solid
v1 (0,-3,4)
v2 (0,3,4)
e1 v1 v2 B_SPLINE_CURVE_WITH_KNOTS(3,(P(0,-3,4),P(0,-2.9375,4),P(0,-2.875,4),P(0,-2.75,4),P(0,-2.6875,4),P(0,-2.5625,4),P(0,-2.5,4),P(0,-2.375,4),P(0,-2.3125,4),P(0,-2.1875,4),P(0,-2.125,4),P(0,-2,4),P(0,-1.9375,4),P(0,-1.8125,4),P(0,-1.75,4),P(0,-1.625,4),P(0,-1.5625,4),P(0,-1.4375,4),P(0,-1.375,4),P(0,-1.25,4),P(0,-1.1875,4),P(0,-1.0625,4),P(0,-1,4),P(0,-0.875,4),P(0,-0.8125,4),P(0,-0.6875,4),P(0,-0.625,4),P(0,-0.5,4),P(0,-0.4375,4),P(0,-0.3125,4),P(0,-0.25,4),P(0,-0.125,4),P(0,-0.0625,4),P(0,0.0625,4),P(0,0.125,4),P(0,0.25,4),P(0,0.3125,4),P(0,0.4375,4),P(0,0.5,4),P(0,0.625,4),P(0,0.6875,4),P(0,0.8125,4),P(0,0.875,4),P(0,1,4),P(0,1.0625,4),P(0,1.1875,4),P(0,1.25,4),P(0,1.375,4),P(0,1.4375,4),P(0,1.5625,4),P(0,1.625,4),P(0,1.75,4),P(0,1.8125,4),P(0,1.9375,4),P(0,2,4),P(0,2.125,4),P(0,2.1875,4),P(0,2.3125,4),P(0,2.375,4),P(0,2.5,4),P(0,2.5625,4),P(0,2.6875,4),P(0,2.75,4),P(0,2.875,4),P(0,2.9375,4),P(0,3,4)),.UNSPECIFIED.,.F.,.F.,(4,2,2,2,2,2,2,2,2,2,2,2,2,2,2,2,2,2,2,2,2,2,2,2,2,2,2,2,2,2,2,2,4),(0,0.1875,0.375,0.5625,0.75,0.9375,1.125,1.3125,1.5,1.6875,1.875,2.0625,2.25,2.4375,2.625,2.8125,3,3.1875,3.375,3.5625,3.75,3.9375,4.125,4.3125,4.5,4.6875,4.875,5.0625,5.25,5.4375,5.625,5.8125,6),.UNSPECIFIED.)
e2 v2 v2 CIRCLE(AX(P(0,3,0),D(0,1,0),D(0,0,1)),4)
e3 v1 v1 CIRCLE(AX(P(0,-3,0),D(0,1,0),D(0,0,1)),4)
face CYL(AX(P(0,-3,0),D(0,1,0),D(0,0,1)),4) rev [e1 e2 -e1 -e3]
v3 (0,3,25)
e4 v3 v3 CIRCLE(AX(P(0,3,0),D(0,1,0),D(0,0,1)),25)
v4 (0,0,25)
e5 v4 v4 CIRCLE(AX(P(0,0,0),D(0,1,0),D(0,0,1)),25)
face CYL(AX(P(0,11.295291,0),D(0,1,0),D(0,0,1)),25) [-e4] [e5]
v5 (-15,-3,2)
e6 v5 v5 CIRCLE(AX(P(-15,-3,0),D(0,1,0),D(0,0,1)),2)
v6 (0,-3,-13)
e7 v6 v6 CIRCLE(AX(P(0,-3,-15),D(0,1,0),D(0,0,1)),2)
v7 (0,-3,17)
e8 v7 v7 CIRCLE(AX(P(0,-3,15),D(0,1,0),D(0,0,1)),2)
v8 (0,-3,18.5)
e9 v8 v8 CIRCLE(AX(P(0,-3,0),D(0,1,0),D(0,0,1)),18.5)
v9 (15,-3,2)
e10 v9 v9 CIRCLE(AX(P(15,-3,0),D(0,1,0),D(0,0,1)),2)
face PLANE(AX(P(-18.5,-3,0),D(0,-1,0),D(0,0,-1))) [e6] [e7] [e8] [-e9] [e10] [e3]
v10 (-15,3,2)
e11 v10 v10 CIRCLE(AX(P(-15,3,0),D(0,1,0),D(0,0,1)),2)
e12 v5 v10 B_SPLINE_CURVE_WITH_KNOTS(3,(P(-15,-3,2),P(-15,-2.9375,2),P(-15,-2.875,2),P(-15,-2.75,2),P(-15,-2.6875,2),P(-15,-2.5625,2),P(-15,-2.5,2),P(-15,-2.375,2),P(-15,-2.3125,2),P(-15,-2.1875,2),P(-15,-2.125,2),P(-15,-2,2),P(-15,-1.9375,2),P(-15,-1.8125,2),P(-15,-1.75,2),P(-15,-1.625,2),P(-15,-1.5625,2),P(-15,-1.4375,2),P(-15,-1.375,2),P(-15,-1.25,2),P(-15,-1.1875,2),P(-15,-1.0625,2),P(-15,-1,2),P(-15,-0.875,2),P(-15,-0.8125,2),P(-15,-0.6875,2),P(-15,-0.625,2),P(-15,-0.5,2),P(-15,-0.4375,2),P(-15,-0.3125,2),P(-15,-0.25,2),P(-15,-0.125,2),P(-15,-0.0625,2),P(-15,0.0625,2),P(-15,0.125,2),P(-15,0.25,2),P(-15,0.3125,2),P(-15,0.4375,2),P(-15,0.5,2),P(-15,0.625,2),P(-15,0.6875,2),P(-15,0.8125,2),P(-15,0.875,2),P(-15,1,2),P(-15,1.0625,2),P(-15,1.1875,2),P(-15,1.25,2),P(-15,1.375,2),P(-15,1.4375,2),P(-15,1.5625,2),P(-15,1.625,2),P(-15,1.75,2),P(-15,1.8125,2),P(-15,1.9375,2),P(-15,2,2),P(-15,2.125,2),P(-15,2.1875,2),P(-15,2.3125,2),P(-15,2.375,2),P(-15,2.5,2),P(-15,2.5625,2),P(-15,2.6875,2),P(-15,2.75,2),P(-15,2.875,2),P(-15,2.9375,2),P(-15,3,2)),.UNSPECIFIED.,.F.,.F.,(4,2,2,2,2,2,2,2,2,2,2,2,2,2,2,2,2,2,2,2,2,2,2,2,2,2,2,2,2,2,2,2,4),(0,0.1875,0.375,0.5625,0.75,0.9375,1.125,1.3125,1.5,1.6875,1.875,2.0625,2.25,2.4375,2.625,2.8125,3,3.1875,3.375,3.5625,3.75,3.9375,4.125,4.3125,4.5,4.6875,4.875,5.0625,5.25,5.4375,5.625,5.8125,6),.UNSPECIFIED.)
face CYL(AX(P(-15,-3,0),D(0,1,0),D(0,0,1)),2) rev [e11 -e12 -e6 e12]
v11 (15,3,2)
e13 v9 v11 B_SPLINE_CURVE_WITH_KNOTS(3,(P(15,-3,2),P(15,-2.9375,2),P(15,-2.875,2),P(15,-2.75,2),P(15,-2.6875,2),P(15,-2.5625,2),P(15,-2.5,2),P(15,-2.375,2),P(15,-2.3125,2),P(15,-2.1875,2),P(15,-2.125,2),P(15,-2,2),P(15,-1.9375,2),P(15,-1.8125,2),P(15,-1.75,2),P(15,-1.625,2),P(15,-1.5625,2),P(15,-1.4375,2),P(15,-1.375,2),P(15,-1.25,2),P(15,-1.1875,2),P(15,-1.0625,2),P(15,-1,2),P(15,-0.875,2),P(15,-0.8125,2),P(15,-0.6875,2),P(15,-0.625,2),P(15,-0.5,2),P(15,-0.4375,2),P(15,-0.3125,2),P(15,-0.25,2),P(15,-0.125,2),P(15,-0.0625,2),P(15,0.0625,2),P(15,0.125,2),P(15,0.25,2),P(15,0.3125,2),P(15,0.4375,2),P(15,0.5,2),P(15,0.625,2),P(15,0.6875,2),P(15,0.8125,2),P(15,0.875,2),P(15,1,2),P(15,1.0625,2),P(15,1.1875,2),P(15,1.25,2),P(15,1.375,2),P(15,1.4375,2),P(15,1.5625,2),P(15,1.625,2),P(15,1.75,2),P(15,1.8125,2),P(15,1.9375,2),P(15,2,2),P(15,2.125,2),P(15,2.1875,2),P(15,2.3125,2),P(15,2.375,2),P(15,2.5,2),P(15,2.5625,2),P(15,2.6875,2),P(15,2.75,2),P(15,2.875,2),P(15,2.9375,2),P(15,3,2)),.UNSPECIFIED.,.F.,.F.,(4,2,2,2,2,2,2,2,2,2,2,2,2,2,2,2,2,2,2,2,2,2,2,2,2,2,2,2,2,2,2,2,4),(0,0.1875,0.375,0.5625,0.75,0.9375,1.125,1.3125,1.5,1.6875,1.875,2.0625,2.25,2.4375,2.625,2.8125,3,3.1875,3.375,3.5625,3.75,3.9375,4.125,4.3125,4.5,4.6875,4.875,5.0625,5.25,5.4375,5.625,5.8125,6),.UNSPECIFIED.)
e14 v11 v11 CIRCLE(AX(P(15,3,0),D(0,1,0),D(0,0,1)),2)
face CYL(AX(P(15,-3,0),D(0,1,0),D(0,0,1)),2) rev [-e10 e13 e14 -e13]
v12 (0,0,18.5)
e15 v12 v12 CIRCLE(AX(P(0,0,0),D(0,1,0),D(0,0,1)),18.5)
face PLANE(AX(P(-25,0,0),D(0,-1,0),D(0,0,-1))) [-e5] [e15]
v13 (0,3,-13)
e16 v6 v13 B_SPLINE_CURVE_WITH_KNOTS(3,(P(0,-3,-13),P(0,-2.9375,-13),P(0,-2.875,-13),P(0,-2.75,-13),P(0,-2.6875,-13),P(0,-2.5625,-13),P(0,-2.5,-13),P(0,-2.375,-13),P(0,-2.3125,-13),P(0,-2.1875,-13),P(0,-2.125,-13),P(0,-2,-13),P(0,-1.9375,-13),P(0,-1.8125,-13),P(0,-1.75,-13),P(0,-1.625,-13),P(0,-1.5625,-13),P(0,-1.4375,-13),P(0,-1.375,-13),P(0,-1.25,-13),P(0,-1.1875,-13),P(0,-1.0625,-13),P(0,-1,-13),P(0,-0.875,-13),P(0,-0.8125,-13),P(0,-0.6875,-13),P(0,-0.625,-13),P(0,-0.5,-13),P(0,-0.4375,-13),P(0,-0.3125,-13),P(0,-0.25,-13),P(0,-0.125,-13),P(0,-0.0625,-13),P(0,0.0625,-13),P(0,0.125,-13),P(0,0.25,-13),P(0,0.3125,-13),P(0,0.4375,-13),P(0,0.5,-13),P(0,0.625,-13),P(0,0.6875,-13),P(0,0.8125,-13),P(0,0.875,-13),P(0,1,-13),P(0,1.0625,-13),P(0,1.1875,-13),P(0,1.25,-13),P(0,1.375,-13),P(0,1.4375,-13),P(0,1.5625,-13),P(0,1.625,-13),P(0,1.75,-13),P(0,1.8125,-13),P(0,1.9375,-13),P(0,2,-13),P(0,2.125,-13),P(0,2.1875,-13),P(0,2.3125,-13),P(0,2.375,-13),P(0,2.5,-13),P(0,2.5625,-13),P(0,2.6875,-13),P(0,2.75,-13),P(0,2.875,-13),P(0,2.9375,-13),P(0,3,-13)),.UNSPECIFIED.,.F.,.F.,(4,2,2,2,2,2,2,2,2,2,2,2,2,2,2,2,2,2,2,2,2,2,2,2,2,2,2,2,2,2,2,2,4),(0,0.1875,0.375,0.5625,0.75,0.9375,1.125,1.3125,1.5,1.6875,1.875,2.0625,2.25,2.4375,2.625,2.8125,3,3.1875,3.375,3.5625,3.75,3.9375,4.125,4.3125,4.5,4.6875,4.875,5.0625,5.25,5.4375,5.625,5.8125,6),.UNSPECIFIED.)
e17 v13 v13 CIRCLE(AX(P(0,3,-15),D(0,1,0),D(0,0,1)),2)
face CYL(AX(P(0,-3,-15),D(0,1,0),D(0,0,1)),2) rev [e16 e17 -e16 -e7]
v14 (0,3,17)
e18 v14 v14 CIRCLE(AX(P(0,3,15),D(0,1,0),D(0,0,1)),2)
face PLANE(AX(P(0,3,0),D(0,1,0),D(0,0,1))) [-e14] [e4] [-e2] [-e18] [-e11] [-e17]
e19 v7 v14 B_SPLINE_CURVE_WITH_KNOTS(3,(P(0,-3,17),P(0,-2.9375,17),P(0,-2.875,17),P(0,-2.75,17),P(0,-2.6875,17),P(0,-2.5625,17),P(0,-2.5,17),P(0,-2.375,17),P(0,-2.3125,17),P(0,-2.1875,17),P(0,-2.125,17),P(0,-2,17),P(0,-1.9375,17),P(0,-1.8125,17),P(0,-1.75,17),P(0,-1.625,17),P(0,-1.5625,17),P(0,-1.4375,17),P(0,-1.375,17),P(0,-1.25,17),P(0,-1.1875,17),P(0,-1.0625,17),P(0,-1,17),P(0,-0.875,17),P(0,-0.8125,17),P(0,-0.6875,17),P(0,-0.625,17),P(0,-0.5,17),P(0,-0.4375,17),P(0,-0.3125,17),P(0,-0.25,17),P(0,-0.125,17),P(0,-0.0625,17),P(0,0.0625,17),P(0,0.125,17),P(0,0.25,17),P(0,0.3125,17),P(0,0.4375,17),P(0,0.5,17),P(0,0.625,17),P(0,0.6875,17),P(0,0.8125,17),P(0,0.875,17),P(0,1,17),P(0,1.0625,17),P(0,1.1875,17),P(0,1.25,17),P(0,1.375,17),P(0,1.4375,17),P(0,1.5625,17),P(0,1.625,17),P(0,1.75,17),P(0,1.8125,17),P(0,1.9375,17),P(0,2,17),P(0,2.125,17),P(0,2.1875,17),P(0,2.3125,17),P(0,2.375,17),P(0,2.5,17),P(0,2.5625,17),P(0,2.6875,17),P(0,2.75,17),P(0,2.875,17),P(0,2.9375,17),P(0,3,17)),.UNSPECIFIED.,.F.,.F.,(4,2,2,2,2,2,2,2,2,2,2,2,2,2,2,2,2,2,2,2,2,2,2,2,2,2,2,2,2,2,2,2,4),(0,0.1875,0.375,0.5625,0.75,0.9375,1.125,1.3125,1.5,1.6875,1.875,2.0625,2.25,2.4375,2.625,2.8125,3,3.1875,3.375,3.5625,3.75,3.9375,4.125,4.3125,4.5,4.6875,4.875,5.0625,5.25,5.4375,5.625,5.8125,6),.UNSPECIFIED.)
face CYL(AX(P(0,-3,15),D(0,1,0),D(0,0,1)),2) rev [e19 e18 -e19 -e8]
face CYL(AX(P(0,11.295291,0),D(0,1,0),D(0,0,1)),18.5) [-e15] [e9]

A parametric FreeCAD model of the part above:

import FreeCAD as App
import Part
import Sketcher
from FreeCAD import Vector

doc = App.newDocument("Part")
body = doc.addObject("PartDesign::Body", "Body")

sketch1 = body.newObject("Sketcher::SketchObject", "Sketch")
sketch1.AttachmentSupport = (doc.getObject("XY_Plane"), [""])
sketch1.MapMode = "FlatFace"
sketch1.addGeometry([
    Part.LineSegment(Vector(0, 3, 0), Vector(-25, 3, 0)),
    Part.LineSegment(Vector(-25, 3, 0), Vector(-25, 0, 0)),
    Part.LineSegment(Vector(-25, 0, 0), Vector(-18.5, 0, 0)),
    Part.LineSegment(Vector(-18.5, 0, 0), Vector(-18.5, -3, 0)),
    Part.LineSegment(Vector(-18.5, -3, 0), Vector(0, -3, 0)),
    Part.LineSegment(Vector(0, -3, 0), Vector(0, 3, 0)),
], False)
sketch1.addConstraint([
    Sketcher.Constraint("Coincident", 0, 2, 1, 1),
    Sketcher.Constraint("Coincident", 1, 2, 2, 1),
    Sketcher.Constraint("Coincident", 2, 2, 3, 1),
    Sketcher.Constraint("Coincident", 3, 2, 4, 1),
    Sketcher.Constraint("Coincident", 4, 2, 5, 1),
    Sketcher.Constraint("Coincident", 5, 2, 0, 1),
    Sketcher.Constraint("Horizontal", 0),
    Sketcher.Constraint("Vertical", 1),
    Sketcher.Constraint("Horizontal", 2),
    Sketcher.Constraint("Vertical", 3),
    Sketcher.Constraint("Horizontal", 4),
    Sketcher.Constraint("Vertical", 5),
    Sketcher.Constraint("Symmetric", 4, 2, 5, 2, -1, 1),
    Sketcher.Constraint("PointOnObject", 1, 2, -1),
    Sketcher.Constraint("DistanceX", 0, 2, 0, 1, 25.0),
    Sketcher.Constraint("DistanceY", 1, 2, 1, 1, 3.0),
    Sketcher.Constraint("DistanceX", 2, 1, 2, 2, 6.5),
])
revolution = body.newObject("PartDesign::Revolution", "Revolution")
revolution.Profile = sketch1
revolution.ReferenceAxis = (sketch1, ["V_Axis"])
revolution.Angle = 360

sketch2 = body.newObject("Sketcher::SketchObject", "Sketch001")
sketch2.AttachmentSupport = (doc.getObject("XZ_Plane"), [""])
sketch2.MapMode = "FlatFace"
sketch2.AttachmentOffset = App.Placement(Vector(0, 0, -3), App.Rotation())
sketch2.addGeometry([
    Part.Circle(Vector(0, -15, 0), Vector(0, 0, 1), 2),
    Part.Circle(Vector(15, 0, 0), Vector(0, 0, 1), 2),
    Part.Circle(Vector(0, 15, 0), Vector(0, 0, 1), 2),
    Part.Circle(Vector(-15, 0, 0), Vector(0, 0, 1), 2),
    Part.Circle(Vector(0, 0, 0), Vector(0, 0, 1), 4),
], False)
sketch2.addConstraint([
    Sketcher.Constraint("Coincident", 4, 3, -1, 1),
    Sketcher.Constraint("Equal", 0, 1),
    Sketcher.Constraint("Equal", 1, 2),
    Sketcher.Constraint("Equal", 2, 3),
    Sketcher.Constraint("Symmetric", 0, 3, 2, 3, -1, 1),
    Sketcher.Constraint("Symmetric", 1, 3, 3, 3, -1, 1),
    Sketcher.Constraint("PointOnObject", 0, 3, -2),
    Sketcher.Constraint("PointOnObject", 1, 3, -1),
    Sketcher.Constraint("Diameter", 0, 4.0),
    Sketcher.Constraint("Diameter", 4, 8.0),
    Sketcher.Constraint("DistanceY", 0, 3, -1, 1, 15.0),
    Sketcher.Constraint("DistanceX", -1, 1, 1, 3, 15.0),
])
pocket1 = body.newObject("PartDesign::Pocket", "Pocket")
pocket1.Profile = sketch2
pocket1.Type = "ThroughAll"
pocket1.Reversed = True

doc.recompute()
